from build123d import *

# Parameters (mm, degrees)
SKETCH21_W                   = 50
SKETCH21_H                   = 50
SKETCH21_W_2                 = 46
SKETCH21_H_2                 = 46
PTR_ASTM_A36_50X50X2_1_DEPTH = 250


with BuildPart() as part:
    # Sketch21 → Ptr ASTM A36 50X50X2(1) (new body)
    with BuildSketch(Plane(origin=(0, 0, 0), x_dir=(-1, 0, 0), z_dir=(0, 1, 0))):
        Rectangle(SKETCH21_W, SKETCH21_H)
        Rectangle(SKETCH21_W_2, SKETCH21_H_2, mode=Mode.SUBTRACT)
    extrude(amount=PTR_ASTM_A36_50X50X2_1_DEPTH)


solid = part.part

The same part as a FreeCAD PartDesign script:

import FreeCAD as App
import Part
import Sketcher
from FreeCAD import Vector


def add_polygon(sketch, points):
    """Adds a closed chain of lines whose ends are joined by coincident constraints."""
    first, n = sketch.GeometryCount, len(points)
    for a, b in zip(points, points[1:] + points[:1]):
        sketch.addGeometry(Part.LineSegment(App.Vector(*a, 0), App.Vector(*b, 0)), False)
    for i in range(n):
        sketch.addConstraint(Sketcher.Constraint("Coincident", first + i, 2, first + (i + 1) % n, 1))

doc = App.newDocument("Part")
body = doc.addObject("PartDesign::Body", "Body")

# Sketch on XZ plane
sketch1 = doc.addObject("Sketcher::SketchObject", "Sketch")
body.addObject(sketch1)
sketch1.AttachmentSupport = (doc.XZ_Plane, [""])
sketch1.MapMode = "FlatFace"
add_polygon(sketch1, [(25, 25), (25, -25), (-25, -25), (-25, 25)])  # lines 0-3
add_polygon(sketch1, [(-23, -23), (23, -23), (23, 23), (-23, 23)])  # lines 4-7
sketch1.addConstraint([
    Sketcher.Constraint("Vertical", 0),
    Sketcher.Constraint("Horizontal", 1),
    Sketcher.Constraint("Vertical", 2),
    Sketcher.Constraint("Horizontal", 3),
    Sketcher.Constraint("Horizontal", 4),
    Sketcher.Constraint("Vertical", 5),
    Sketcher.Constraint("Horizontal", 6),
    Sketcher.Constraint("Vertical", 7),
    Sketcher.Constraint("Symmetric", 0, 2, 2, 2, -1, 1),
    Sketcher.Constraint("Symmetric", 4, 2, 6, 2, -1, 1),
    Sketcher.Constraint("Equal", 3, 0),
    Sketcher.Constraint("Equal", 6, 5),
    Sketcher.Constraint("DistanceX", 1, 2, 1, 1, 50.0),
    Sketcher.Constraint("DistanceX", 4, 1, 4, 2, 46.0),
])
pad1 = doc.addObject("PartDesign::Pad", "Pad")
body.addObject(pad1)
pad1.Profile = sketch1
pad1.Length = 250
pad1.Reversed = True

doc.recompute()
